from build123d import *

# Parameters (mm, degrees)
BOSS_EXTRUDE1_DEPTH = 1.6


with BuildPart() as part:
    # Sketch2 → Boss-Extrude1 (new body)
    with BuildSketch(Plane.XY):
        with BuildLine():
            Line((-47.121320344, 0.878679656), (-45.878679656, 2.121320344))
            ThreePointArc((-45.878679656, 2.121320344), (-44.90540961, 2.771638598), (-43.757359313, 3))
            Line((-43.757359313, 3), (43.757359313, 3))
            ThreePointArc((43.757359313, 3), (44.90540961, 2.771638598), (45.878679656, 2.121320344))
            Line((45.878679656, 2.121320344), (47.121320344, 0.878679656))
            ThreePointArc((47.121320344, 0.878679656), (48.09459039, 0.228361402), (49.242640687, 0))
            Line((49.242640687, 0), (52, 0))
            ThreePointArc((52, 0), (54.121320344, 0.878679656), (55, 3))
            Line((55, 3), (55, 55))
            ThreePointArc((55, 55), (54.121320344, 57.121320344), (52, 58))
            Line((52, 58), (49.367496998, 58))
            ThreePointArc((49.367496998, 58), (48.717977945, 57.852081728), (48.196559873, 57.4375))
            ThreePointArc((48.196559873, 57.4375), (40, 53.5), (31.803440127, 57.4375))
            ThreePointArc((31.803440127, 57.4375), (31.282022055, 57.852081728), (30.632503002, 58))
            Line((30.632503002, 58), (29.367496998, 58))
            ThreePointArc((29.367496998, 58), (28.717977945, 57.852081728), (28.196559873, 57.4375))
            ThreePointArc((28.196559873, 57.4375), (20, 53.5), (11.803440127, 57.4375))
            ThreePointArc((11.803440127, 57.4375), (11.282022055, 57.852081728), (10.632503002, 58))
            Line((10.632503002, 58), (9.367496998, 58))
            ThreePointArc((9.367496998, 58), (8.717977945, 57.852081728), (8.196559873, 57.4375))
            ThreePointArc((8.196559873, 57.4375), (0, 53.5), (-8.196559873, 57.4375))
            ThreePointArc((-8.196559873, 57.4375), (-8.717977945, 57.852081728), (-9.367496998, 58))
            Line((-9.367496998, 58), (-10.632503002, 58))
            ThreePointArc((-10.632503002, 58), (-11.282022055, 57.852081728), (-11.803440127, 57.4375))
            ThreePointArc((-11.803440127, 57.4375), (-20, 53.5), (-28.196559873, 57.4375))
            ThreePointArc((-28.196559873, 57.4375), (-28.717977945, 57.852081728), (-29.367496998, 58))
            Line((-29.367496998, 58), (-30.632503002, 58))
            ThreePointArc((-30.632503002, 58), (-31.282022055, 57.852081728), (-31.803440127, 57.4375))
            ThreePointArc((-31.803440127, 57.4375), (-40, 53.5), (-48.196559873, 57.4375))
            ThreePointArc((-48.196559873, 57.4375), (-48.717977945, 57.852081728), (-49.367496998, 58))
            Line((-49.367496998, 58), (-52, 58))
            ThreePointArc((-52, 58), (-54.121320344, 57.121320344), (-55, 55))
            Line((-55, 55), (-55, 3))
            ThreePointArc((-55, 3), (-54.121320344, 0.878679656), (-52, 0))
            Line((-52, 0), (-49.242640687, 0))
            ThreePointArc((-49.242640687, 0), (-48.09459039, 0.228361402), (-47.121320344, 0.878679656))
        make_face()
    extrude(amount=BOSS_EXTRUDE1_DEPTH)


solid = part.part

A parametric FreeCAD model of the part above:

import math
import FreeCAD as App
import Part
import Sketcher

V = App.Vector
Q = App.Units.Quantity

doc = App.newDocument("Part")
params = doc.addObject("Spreadsheet::Sheet", "Params")
for row, (alias, value) in enumerate([
    ("sketch1_radius", "3 mm"),
    ("sketch1_radius2", "1.5 mm"),
    ("sketch1_radius3", "10.5 mm"),
    ("sketch1_height", "52 mm"),
    ("pad1_length", "1.6 mm"),
], start=1):
    params.set(f"A{row}", alias)
    params.set(f"B{row}", "=" + value)
    params.setAlias(f"B{row}", alias)

body = doc.addObject("PartDesign::Body", "Body")

sketch1 = body.newObject("Sketcher::SketchObject", "Sketch")
sketch1.AttachmentSupport = (doc.getObject("XY_Plane"), [""])
sketch1.MapMode = "FlatFace"
sketch1.addGeometry(Part.LineSegment(V(-47.12132, 0.87868, 0), V(-45.87868, 2.12132, 0)), False)
sketch1.addGeometry(Part.ArcOfCircle(Part.Circle(V(-43.757359, 0, 0), V(0, 0, 1), 3), math.radians(90), math.radians(135)), False)
sketch1.addGeometry(Part.LineSegment(V(-43.757359, 3, 0), V(43.757359, 3, 0)), False)
sketch1.addGeometry(Part.ArcOfCircle(Part.Circle(V(43.757359, 0, 0), V(0, 0, 1), 3), math.radians(45), math.radians(90)), False)
sketch1.addGeometry(Part.LineSegment(V(45.87868, 2.12132, 0), V(47.12132, 0.87868, 0)), False)
sketch1.addGeometry(Part.ArcOfCircle(Part.Circle(V(49.242641, 3, 0), V(0, 0, 1), 3), math.radians(-135), math.radians(-90)), False)
sketch1.addGeometry(Part.LineSegment(V(49.242641, 0, 0), V(52, 0, 0)), False)
sketch1.addGeometry(Part.ArcOfCircle(Part.Circle(V(52, 3, 0), V(0, 0, 1), 3), math.radians(-90), math.radians(0)), False)
sketch1.addGeometry(Part.LineSegment(V(55, 3, 0), V(55, 55, 0)), False)
sketch1.addGeometry(Part.ArcOfCircle(Part.Circle(V(52, 55, 0), V(0, 0, 1), 3), math.radians(0), math.radians(90)), False)
sketch1.addGeometry(Part.LineSegment(V(52, 58, 0), V(49.367497, 58, 0)), False)
sketch1.addGeometry(Part.ArcOfCircle(Part.Circle(V(49.367497, 56.5, 0), V(0, 0, 1), 1.5), math.radians(90), math.radians(141.317812)), False)
sketch1.addGeometry(Part.ArcOfCircle(Part.Circle(V(40, 64, 0), V(0, 0, 1), 10.5), math.radians(-141.317813), math.radians(-38.682187)), False)
sketch1.addGeometry(Part.ArcOfCircle(Part.Circle(V(30.632503, 56.5, 0), V(0, 0, 1), 1.5), math.radians(38.682188), math.radians(90)), False)
sketch1.addGeometry(Part.LineSegment(V(30.632503, 58, 0), V(29.367497, 58, 0)), False)
sketch1.addGeometry(Part.ArcOfCircle(Part.Circle(V(29.367497, 56.5, 0), V(0, 0, 1), 1.5), math.radians(90), math.radians(141.317812)), False)
sketch1.addGeometry(Part.ArcOfCircle(Part.Circle(V(20, 64, 0), V(0, 0, 1), 10.5), math.radians(-141.317813), math.radians(-38.682187)), False)
sketch1.addGeometry(Part.ArcOfCircle(Part.Circle(V(10.632503, 56.5, 0), V(0, 0, 1), 1.5), math.radians(38.682188), math.radians(90)), False)
sketch1.addGeometry(Part.LineSegment(V(10.632503, 58, 0), V(9.367497, 58, 0)), False)
sketch1.addGeometry(Part.ArcOfCircle(Part.Circle(V(9.367497, 56.5, 0), V(0, 0, 1), 1.5), math.radians(90), math.radians(141.317812)), False)
sketch1.addGeometry(Part.ArcOfCircle(Part.Circle(V(0, 64, 0), V(0, 0, 1), 10.5), math.radians(-141.317813), math.radians(-38.682187)), False)
sketch1.addGeometry(Part.ArcOfCircle(Part.Circle(V(-9.367497, 56.5, 0), V(0, 0, 1), 1.5), math.radians(38.682188), math.radians(90)), False)
sketch1.addGeometry(Part.LineSegment(V(-9.367497, 58, 0), V(-10.632503, 58, 0)), False)
sketch1.addGeometry(Part.ArcOfCircle(Part.Circle(V(-10.632503, 56.5, 0), V(0, 0, 1), 1.5), math.radians(90), math.radians(141.317812)), False)
sketch1.addGeometry(Part.ArcOfCircle(Part.Circle(V(-20, 64, 0), V(0, 0, 1), 10.5), math.radians(-141.317813), math.radians(-38.682187)), False)
sketch1.addGeometry(Part.ArcOfCircle(Part.Circle(V(-29.367497, 56.5, 0), V(0, 0, 1), 1.5), math.radians(38.682188), math.radians(90)), False)
sketch1.addGeometry(Part.LineSegment(V(-29.367497, 58, 0), V(-30.632503, 58, 0)), False)
sketch1.addGeometry(Part.ArcOfCircle(Part.Circle(V(-30.632503, 56.5, 0), V(0, 0, 1), 1.5), math.radians(90), math.radians(141.317812)), False)
sketch1.addGeometry(Part.ArcOfCircle(Part.Circle(V(-40, 64, 0), V(0, 0, 1), 10.5), math.radians(-141.317813), math.radians(-38.682187)), False)
sketch1.addGeometry(Part.ArcOfCircle(Part.Circle(V(-49.367497, 56.5, 0), V(0, 0, 1), 1.5), math.radians(38.682188), math.radians(90)), False)
sketch1.addGeometry(Part.LineSegment(V(-49.367497, 58, 0), V(-52, 58, 0)), False)
sketch1.addGeometry(Part.ArcOfCircle(Part.Circle(V(-52, 55, 0), V(0, 0, 1), 3), math.radians(90), math.radians(180)), False)
sketch1.addGeometry(Part.LineSegment(V(-55, 55, 0), V(-55, 3, 0)), False)
sketch1.addGeometry(Part.ArcOfCircle(Part.Circle(V(-52, 3, 0), V(0, 0, 1), 3), math.radians(180), math.radians(270)), False)
sketch1.addGeometry(Part.LineSegment(V(-52, 0, 0), V(-49.242641, 0, 0)), False)
sketch1.addGeometry(Part.ArcOfCircle(Part.Circle(V(-49.242641, 3, 0), V(0, 0, 1), 3), math.radians(-90), math.radians(-45)), False)
sketch1.addConstraint(Sketcher.Constraint("Tangent", 0, 2, 1, 2))
sketch1.addConstraint(Sketcher.Constraint("Tangent", 1, 1, 2, 1))
sketch1.addConstraint(Sketcher.Constraint("Tangent", 2, 2, 3, 2))
sketch1.addConstraint(Sketcher.Constraint("Tangent", 3, 1, 4, 1))
sketch1.addConstraint(Sketcher.Constraint("Tangent", 4, 2, 5, 1))
sketch1.addConstraint(Sketcher.Constraint("Tangent", 5, 2, 6, 1))
sketch1.addConstraint(Sketcher.Constraint("Tangent", 6, 2, 7, 1))
sketch1.addConstraint(Sketcher.Constraint("Tangent", 7, 2, 8, 1))
sketch1.addConstraint(Sketcher.Constraint("Tangent", 8, 2, 9, 1))
sketch1.addConstraint(Sketcher.Constraint("Tangent", 9, 2, 10, 1))
sketch1.addConstraint(Sketcher.Constraint("Tangent", 10, 2, 11, 1))
sketch1.addConstraint(Sketcher.Constraint("Tangent", 11, 2, 12, 2))
sketch1.addConstraint(Sketcher.Constraint("Tangent", 12, 1, 13, 1))
sketch1.addConstraint(Sketcher.Constraint("Tangent", 13, 2, 14, 1))
sketch1.addConstraint(Sketcher.Constraint("Tangent", 14, 2, 15, 1))
sketch1.addConstraint(Sketcher.Constraint("Tangent", 15, 2, 16, 2))
sketch1.addConstraint(Sketcher.Constraint("Tangent", 16, 1, 17, 1))
sketch1.addConstraint(Sketcher.Constraint("Tangent", 17, 2, 18, 1))
sketch1.addConstraint(Sketcher.Constraint("Tangent", 18, 2, 19, 1))
sketch1.addConstraint(Sketcher.Constraint("Tangent", 19, 2, 20, 2))
sketch1.addConstraint(Sketcher.Constraint("Tangent", 20, 1, 21, 1))
sketch1.addConstraint(Sketcher.Constraint("Tangent", 21, 2, 22, 1))
sketch1.addConstraint(Sketcher.Constraint("Tangent", 22, 2, 23, 1))
sketch1.addConstraint(Sketcher.Constraint("Tangent", 23, 2, 24, 2))
sketch1.addConstraint(Sketcher.Constraint("Tangent", 24, 1, 25, 1))
sketch1.addConstraint(Sketcher.Constraint("Tangent", 25, 2, 26, 1))
sketch1.addConstraint(Sketcher.Constraint("Tangent", 26, 2, 27, 1))
sketch1.addConstraint(Sketcher.Constraint("Tangent", 27, 2, 28, 2))
sketch1.addConstraint(Sketcher.Constraint("Tangent", 28, 1, 29, 1))
sketch1.addConstraint(Sketcher.Constraint("Tangent", 29, 2, 30, 1))
sketch1.addConstraint(Sketcher.Constraint("Tangent", 30, 2, 31, 1))
sketch1.addConstraint(Sketcher.Constraint("Tangent", 31, 2, 32, 1))
sketch1.addConstraint(Sketcher.Constraint("Tangent", 32, 2, 33, 1))
sketch1.addConstraint(Sketcher.Constraint("Tangent", 33, 2, 34, 1))
sketch1.addConstraint(Sketcher.Constraint("Tangent", 34, 2, 35, 1))
sketch1.addConstraint(Sketcher.Constraint("Tangent", 35, 2, 0, 1))
sketch1.addConstraint(Sketcher.Constraint("Horizontal", 2))
sketch1.addConstraint(Sketcher.Constraint("Horizontal", 6))
sketch1.addConstraint(Sketcher.Constraint("Vertical", 8))
sketch1.addConstraint(Sketcher.Constraint("Horizontal", 10))
sketch1.addConstraint(Sketcher.Constraint("Horizontal", 14))
sketch1.addConstraint(Sketcher.Constraint("Horizontal", 18))
sketch1.addConstraint(Sketcher.Constraint("Horizontal", 22))
sketch1.addConstraint(Sketcher.Constraint("Horizontal", 26))
sketch1.addConstraint(Sketcher.Constraint("Horizontal", 30))
sketch1.addConstraint(Sketcher.Constraint("Vertical", 32))
sketch1.addConstraint(Sketcher.Constraint("Horizontal", 34))
sketch1.addConstraint(Sketcher.Constraint("Equal", 1, 3))
sketch1.addConstraint(Sketcher.Constraint("Equal", 3, 5))
sketch1.addConstraint(Sketcher.Constraint("Equal", 5, 7))
sketch1.addConstraint(Sketcher.Constraint("Equal", 7, 9))
sketch1.addConstraint(Sketcher.Constraint("Equal", 11, 13))
sketch1.addConstraint(Sketcher.Constraint("Equal", 13, 15))
sketch1.addConstraint(Sketcher.Constraint("Equal", 12, 16))
sketch1.addConstraint(Sketcher.Constraint("Equal", 15, 17))
sketch1.addConstraint(Sketcher.Constraint("Equal", 17, 19))
sketch1.addConstraint(Sketcher.Constraint("Equal", 16, 20))
sketch1.addConstraint(Sketcher.Constraint("Equal", 19, 21))
sketch1.addConstraint(Sketcher.Constraint("Equal", 21, 23))
sketch1.addConstraint(Sketcher.Constraint("Equal", 20, 24))
sketch1.addConstraint(Sketcher.Constraint("Equal", 23, 25))
sketch1.addConstraint(Sketcher.Constraint("Equal", 25, 27))
sketch1.addConstraint(Sketcher.Constraint("Equal", 24, 28))
sketch1.addConstraint(Sketcher.Constraint("Equal", 27, 29))
sketch1.addConstraint(Sketcher.Constraint("Equal", 9, 31))
sketch1.addConstraint(Sketcher.Constraint("Equal", 31, 33))
sketch1.addConstraint(Sketcher.Constraint("Equal", 33, 35))
sketch1.addConstraint(Sketcher.Constraint("Symmetric", 1, 3, 3, 3, -1, 1))
sketch1.addConstraint(Sketcher.Constraint("Symmetric", 6, 2, 33, 2, -1, 1))
sketch1.addConstraint(Sketcher.Constraint("Symmetric", 19, 3, 21, 3, -2))
sketch1.addConstraint(Sketcher.Constraint("Symmetric", 16, 3, 24, 3, -2))
sketch1.addConstraint(Sketcher.Constraint("Symmetric", 13, 3, 27, 3, -2))
sketch1.addConstraint(Sketcher.Constraint("Symmetric", 11, 3, 29, 3, -2))
sketch1.addConstraint(Sketcher.Constraint("Symmetric", 5, 3, 35, 3, -2))
sketch1.addConstraint(Sketcher.Constraint("Perpendicular", 0, 4))
sketch1.addConstraint(Sketcher.Constraint("Horizontal", 11, 3, 13, 3))
sketch1.addConstraint(Sketcher.Constraint("Horizontal", 12, 3, 16, 3))
sketch1.addConstraint(Sketcher.Constraint("Horizontal", 15, 3, 17, 3))
sketch1.addConstraint(Sketcher.Constraint("Horizontal", 16, 3, 20, 3))
sketch1.addConstraint(Sketcher.Constraint("Equal", 14, 18))
sketch1.addConstraint(Sketcher.Constraint("Radius", 1, Q("3 mm")))
sketch1.addConstraint(Sketcher.Constraint("Radius", 11, Q("1.5 mm")))
sketch1.addConstraint(Sketcher.Constraint("Radius", 12, Q("10.5 mm")))
sketch1.addConstraint(Sketcher.Constraint("DistanceY", 8, 1, 8, 2, Q("52 mm")))
sketch1.addConstraint(Sketcher.Constraint("DistanceX", -1, 1, 7, 3, Q("52 mm")))
sketch1.addConstraint(Sketcher.Constraint("DistanceX", -1, 1, 12, 3, Q("40 mm")))
sketch1.addConstraint(Sketcher.Constraint("DistanceY", -1, 1, 12, 3, Q("64 mm")))
sketch1.addConstraint(Sketcher.Constraint("DistanceX", 1, 3, 5, 3, Q("93 mm")))
sketch1.setExpression("Constraints[80]", "Params.sketch1_radius")
sketch1.setExpression("Constraints[81]", "Params.sketch1_radius2")
sketch1.setExpression("Constraints[82]", "Params.sketch1_radius3")
sketch1.setExpression("Constraints[83]", "Params.sketch1_height")
pad1 = body.newObject("PartDesign::Pad", "Pad")
pad1.Profile = sketch1
pad1.setExpression("Length", "Params.pad1_length")

doc.recompute()
